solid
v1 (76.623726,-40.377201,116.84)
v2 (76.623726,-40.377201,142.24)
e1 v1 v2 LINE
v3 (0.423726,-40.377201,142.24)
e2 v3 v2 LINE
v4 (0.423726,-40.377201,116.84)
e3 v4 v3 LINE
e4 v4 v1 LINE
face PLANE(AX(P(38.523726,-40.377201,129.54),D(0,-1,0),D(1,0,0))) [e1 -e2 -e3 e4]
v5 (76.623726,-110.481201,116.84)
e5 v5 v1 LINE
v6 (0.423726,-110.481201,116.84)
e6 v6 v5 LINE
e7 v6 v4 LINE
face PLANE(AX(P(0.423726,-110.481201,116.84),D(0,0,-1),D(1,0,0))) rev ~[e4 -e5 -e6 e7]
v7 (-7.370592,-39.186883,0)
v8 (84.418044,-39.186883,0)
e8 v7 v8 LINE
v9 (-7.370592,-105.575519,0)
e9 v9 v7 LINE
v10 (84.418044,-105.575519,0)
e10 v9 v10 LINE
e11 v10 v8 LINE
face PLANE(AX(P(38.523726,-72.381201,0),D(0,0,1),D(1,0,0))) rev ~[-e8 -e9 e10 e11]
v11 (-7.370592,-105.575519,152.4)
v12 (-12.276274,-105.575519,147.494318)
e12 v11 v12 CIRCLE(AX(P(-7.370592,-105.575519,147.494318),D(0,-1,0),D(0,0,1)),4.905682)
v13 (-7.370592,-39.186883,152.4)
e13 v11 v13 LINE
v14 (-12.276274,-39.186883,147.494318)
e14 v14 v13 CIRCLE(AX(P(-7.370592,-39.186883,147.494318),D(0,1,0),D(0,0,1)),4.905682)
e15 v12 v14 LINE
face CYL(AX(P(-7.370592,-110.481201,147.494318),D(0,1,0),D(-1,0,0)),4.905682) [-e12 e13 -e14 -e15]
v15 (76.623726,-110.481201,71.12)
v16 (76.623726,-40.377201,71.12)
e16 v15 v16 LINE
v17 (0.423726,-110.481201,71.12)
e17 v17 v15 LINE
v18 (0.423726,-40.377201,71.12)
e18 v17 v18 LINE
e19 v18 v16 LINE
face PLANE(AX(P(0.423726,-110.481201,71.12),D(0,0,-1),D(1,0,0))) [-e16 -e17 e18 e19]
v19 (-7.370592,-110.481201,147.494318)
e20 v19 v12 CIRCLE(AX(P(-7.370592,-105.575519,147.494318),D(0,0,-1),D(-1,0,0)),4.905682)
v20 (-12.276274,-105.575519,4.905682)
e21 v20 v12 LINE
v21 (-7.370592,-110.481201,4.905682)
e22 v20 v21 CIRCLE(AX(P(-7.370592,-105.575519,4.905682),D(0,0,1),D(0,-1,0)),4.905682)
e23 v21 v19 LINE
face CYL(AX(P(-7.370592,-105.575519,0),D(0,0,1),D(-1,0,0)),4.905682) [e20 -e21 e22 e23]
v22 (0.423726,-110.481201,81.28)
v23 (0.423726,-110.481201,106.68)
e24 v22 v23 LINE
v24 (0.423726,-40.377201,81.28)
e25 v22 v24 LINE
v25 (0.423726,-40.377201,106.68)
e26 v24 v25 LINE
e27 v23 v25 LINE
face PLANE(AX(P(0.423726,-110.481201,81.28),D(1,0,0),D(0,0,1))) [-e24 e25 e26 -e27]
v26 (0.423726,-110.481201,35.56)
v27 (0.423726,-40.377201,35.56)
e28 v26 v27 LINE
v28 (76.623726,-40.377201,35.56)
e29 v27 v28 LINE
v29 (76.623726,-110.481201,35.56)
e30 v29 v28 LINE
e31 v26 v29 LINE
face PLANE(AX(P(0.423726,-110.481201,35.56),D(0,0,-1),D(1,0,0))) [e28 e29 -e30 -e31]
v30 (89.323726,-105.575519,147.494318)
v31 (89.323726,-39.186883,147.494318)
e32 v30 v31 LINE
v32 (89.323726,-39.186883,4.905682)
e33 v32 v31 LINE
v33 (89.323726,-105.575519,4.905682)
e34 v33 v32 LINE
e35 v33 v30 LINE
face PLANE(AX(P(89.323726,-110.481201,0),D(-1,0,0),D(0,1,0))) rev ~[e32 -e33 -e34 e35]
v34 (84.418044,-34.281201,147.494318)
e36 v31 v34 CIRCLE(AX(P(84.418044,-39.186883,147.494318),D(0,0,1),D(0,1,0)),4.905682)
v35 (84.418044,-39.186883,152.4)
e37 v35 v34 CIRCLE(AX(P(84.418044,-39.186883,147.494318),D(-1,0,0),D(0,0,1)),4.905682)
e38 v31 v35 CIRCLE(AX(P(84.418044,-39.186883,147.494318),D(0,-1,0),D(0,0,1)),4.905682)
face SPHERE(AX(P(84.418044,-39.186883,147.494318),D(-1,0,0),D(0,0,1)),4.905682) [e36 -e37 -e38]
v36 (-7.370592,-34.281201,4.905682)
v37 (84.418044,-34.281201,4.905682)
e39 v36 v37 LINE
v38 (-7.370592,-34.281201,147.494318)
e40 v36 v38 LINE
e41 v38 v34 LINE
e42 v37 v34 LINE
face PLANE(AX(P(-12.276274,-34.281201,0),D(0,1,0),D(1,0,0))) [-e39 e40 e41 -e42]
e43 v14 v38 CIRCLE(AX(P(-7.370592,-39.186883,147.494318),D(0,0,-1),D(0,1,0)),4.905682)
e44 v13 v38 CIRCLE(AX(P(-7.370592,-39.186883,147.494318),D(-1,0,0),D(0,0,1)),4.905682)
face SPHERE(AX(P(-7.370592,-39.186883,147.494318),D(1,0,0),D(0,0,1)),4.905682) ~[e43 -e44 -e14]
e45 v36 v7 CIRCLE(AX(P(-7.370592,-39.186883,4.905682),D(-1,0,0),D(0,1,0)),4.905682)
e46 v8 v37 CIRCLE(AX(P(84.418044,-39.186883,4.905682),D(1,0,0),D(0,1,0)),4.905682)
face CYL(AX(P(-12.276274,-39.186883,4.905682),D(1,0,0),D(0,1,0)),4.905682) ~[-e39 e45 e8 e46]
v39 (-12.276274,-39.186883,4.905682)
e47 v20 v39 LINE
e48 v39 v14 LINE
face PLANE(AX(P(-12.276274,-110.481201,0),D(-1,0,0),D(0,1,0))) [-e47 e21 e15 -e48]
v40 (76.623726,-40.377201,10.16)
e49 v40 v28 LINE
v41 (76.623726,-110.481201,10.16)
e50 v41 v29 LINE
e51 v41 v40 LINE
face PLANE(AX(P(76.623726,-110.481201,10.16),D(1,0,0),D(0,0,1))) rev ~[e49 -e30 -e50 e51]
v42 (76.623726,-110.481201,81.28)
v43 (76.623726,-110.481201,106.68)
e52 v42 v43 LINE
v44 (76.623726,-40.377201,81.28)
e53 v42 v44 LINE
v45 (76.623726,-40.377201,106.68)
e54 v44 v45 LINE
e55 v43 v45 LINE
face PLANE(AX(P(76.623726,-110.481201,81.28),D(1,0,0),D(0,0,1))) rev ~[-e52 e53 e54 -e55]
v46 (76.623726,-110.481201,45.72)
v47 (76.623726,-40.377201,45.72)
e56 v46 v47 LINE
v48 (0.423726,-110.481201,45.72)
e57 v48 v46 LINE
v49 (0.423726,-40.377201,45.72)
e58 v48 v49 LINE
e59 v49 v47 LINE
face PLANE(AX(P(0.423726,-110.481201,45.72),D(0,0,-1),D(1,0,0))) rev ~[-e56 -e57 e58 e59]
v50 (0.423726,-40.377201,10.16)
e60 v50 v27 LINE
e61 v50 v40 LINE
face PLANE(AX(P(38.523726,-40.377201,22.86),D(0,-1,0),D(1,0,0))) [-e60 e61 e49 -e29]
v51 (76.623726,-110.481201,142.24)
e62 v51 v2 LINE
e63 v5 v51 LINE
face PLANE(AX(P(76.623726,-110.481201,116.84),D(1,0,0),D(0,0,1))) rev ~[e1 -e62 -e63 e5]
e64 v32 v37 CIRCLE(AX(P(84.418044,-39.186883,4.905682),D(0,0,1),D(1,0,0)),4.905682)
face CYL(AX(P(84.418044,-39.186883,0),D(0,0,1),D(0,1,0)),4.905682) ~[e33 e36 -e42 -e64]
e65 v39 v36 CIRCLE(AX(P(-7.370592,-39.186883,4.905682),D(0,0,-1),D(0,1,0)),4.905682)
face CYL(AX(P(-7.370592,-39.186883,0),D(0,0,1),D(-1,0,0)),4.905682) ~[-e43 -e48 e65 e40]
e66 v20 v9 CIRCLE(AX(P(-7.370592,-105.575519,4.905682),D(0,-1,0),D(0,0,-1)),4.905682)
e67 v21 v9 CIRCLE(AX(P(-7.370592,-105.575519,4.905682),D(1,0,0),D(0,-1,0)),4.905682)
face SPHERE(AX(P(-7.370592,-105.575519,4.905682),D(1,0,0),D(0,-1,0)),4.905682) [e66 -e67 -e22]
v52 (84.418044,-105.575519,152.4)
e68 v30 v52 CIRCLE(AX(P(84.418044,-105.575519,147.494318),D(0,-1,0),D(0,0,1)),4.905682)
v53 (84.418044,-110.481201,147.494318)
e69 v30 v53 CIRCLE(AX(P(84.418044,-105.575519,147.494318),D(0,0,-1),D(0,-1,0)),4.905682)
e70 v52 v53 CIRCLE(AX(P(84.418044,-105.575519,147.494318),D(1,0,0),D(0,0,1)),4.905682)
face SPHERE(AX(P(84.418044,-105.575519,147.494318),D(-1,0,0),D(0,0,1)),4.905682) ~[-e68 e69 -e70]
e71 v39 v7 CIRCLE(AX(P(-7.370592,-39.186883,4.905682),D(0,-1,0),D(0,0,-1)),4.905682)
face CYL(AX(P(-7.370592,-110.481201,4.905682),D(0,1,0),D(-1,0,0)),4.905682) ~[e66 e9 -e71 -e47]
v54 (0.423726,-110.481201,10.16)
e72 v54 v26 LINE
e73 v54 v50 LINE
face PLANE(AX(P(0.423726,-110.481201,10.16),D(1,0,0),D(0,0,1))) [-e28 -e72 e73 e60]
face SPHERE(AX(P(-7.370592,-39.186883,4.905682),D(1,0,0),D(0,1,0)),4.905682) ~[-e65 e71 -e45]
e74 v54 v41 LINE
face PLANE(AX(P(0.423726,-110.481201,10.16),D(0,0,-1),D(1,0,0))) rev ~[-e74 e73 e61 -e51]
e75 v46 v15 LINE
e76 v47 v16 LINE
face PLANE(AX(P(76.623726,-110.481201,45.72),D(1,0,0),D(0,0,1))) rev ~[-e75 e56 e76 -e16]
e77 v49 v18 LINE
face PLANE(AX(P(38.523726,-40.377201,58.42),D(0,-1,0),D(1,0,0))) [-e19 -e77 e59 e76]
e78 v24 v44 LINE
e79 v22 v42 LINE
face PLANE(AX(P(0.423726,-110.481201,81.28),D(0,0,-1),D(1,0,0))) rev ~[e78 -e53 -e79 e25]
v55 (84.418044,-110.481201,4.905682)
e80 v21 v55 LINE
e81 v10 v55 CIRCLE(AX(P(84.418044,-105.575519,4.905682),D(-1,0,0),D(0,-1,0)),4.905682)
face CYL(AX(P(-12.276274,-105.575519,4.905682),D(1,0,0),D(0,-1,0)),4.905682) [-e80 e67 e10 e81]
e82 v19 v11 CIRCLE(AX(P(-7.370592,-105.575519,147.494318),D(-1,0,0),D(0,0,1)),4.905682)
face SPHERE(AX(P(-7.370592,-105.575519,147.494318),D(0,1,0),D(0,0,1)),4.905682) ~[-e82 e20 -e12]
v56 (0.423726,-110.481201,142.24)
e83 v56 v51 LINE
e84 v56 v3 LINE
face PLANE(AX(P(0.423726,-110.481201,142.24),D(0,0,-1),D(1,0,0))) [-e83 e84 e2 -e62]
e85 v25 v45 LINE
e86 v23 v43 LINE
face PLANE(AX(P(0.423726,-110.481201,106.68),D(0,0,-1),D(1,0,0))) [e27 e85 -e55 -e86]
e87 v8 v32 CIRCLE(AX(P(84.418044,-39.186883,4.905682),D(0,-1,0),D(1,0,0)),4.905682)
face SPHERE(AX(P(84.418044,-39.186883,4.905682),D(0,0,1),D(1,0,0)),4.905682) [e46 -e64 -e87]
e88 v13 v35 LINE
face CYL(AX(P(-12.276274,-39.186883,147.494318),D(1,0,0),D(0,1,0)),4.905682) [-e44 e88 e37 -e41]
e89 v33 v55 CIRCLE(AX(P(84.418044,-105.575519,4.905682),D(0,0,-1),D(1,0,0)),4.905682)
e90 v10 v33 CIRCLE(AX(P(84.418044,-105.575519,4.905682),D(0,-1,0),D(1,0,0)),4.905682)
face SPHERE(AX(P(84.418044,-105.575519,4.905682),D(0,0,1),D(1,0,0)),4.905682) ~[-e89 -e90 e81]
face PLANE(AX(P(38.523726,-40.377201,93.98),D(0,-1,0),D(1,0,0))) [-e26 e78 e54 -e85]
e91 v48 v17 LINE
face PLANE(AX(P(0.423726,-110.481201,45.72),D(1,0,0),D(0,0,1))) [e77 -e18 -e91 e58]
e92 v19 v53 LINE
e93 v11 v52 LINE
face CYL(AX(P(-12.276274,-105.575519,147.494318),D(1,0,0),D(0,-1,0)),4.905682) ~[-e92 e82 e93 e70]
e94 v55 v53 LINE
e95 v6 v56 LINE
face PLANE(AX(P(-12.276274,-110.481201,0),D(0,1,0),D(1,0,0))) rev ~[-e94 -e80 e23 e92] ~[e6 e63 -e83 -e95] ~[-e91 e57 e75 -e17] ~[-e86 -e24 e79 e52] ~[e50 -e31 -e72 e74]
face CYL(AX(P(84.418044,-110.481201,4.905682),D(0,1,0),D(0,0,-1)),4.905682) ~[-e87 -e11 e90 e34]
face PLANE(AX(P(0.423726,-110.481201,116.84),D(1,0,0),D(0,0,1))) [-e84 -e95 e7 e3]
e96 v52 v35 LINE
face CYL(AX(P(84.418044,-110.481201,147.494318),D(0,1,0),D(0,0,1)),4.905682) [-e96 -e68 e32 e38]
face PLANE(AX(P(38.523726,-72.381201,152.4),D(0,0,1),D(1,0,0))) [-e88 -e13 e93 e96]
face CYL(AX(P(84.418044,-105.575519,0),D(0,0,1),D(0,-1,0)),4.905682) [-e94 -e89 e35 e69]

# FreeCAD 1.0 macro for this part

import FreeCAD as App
import Part
import Sketcher
Q = App.Units.Quantity


def edges_at(feature, points):
    """Names of the edges that pass closest to the given points."""
    edges = feature.Shape.Edges
    near = lambda p: min(range(len(edges)), key=lambda i: edges[i].distToShape(Part.Vertex(*p))[0])
    return sorted({f"Edge{near(p) + 1}" for p in points})

doc = App.newDocument("Part")
body = doc.addObject("PartDesign::Body", "Body")

sketch1 = body.newObject("Sketcher::SketchObject", "Sketch")
sketch1.AttachmentSupport = (doc.getObject("XY_Plane"), [""])
sketch1.MapMode = "FlatFace"
sketch1.addGeometry(Part.LineSegment(App.Vector(-12.276274, -34.281201, 0), App.Vector(-12.276274, -110.481201, 0)), False)
sketch1.addGeometry(Part.LineSegment(App.Vector(-12.276274, -110.481201, 0), App.Vector(89.323726, -110.481201, 0)), False)
sketch1.addGeometry(Part.LineSegment(App.Vector(89.323726, -110.481201, 0), App.Vector(89.323726, -34.281201, 0)), False)
sketch1.addGeometry(Part.LineSegment(App.Vector(89.323726, -34.281201, 0), App.Vector(-12.276274, -34.281201, 0)), False)
sketch1.addConstraint(Sketcher.Constraint("Coincident", 0, 2, 1, 1))
sketch1.addConstraint(Sketcher.Constraint("Coincident", 1, 2, 2, 1))
sketch1.addConstraint(Sketcher.Constraint("Coincident", 2, 2, 3, 1))
sketch1.addConstraint(Sketcher.Constraint("Coincident", 3, 2, 0, 1))
sketch1.addConstraint(Sketcher.Constraint("Vertical", 0))
sketch1.addConstraint(Sketcher.Constraint("Horizontal", 1))
sketch1.addConstraint(Sketcher.Constraint("Vertical", 2))
sketch1.addConstraint(Sketcher.Constraint("Horizontal", 3))
sketch1.addConstraint(Sketcher.Constraint("DistanceX", 1, 1, 1, 2, Q("4 in")))
sketch1.addConstraint(Sketcher.Constraint("DistanceY", 0, 2, 0, 1, Q("3 in")))
sketch1.addConstraint(Sketcher.Constraint("DistanceY", 0, 2, -1, 1, 110.481201))
sketch1.addConstraint(Sketcher.Constraint("DistanceX", 0, 2, -1, 1, 12.276274))
pad1 = body.newObject("PartDesign::Pad", "Pad")
pad1.Profile = sketch1
pad1.Length = Q("6 in")

sketch2 = body.newObject("Sketcher::SketchObject", "Sketch001")
sketch2.AttachmentSupport = (doc.getObject("XZ_Plane"), [""])
sketch2.MapMode = "FlatFace"
sketch2.AttachmentOffset = App.Placement(App.Vector(0, 0, 110.481201), App.Rotation())
sketch2.addGeometry(Part.LineSegment(App.Vector(0.423726, 142.24, 0), App.Vector(0.423726, 116.84, 0)), False)
sketch2.addGeometry(Part.LineSegment(App.Vector(0.423726, 116.84, 0), App.Vector(76.623726, 116.84, 0)), False)
sketch2.addGeometry(Part.LineSegment(App.Vector(76.623726, 116.84, 0), App.Vector(76.623726, 142.24, 0)), False)
sketch2.addGeometry(Part.LineSegment(App.Vector(76.623726, 142.24, 0), App.Vector(0.423726, 142.24, 0)), False)
sketch2.addGeometry(Part.LineSegment(App.Vector(0.423726, 106.68, 0), App.Vector(0.423726, 81.28, 0)), False)
sketch2.addGeometry(Part.LineSegment(App.Vector(0.423726, 81.28, 0), App.Vector(76.623726, 81.28, 0)), False)
sketch2.addGeometry(Part.LineSegment(App.Vector(76.623726, 81.28, 0), App.Vector(76.623726, 106.68, 0)), False)
sketch2.addGeometry(Part.LineSegment(App.Vector(76.623726, 106.68, 0), App.Vector(0.423726, 106.68, 0)), False)
sketch2.addGeometry(Part.LineSegment(App.Vector(0.423726, 71.12, 0), App.Vector(0.423726, 45.72, 0)), False)
sketch2.addGeometry(Part.LineSegment(App.Vector(0.423726, 45.72, 0), App.Vector(76.623726, 45.72, 0)), False)
sketch2.addGeometry(Part.LineSegment(App.Vector(76.623726, 45.72, 0), App.Vector(76.623726, 71.12, 0)), False)
sketch2.addGeometry(Part.LineSegment(App.Vector(76.623726, 71.12, 0), App.Vector(0.423726, 71.12, 0)), False)
sketch2.addGeometry(Part.LineSegment(App.Vector(0.423726, 35.56, 0), App.Vector(0.423726, 10.16, 0)), False)
sketch2.addGeometry(Part.LineSegment(App.Vector(0.423726, 10.16, 0), App.Vector(76.623726, 10.16, 0)), False)
sketch2.addGeometry(Part.LineSegment(App.Vector(76.623726, 10.16, 0), App.Vector(76.623726, 35.56, 0)), False)
sketch2.addGeometry(Part.LineSegment(App.Vector(76.623726, 35.56, 0), App.Vector(0.423726, 35.56, 0)), False)
sketch2.addConstraint(Sketcher.Constraint("Coincident", 0, 2, 1, 1))
sketch2.addConstraint(Sketcher.Constraint("Coincident", 1, 2, 2, 1))
sketch2.addConstraint(Sketcher.Constraint("Coincident", 2, 2, 3, 1))
sketch2.addConstraint(Sketcher.Constraint("Coincident", 3, 2, 0, 1))
sketch2.addConstraint(Sketcher.Constraint("Coincident", 4, 2, 5, 1))
sketch2.addConstraint(Sketcher.Constraint("Coincident", 5, 2, 6, 1))
sketch2.addConstraint(Sketcher.Constraint("Coincident", 6, 2, 7, 1))
sketch2.addConstraint(Sketcher.Constraint("Coincident", 7, 2, 4, 1))
sketch2.addConstraint(Sketcher.Constraint("Coincident", 8, 2, 9, 1))
sketch2.addConstraint(Sketcher.Constraint("Coincident", 9, 2, 10, 1))
sketch2.addConstraint(Sketcher.Constraint("Coincident", 10, 2, 11, 1))
sketch2.addConstraint(Sketcher.Constraint("Coincident", 11, 2, 8, 1))
sketch2.addConstraint(Sketcher.Constraint("Coincident", 12, 2, 13, 1))
sketch2.addConstraint(Sketcher.Constraint("Coincident", 13, 2, 14, 1))
sketch2.addConstraint(Sketcher.Constraint("Coincident", 14, 2, 15, 1))
sketch2.addConstraint(Sketcher.Constraint("Coincident", 15, 2, 12, 1))
sketch2.addConstraint(Sketcher.Constraint("Vertical", 0))
sketch2.addConstraint(Sketcher.Constraint("Horizontal", 1))
sketch2.addConstraint(Sketcher.Constraint("Vertical", 2))
sketch2.addConstraint(Sketcher.Constraint("Horizontal", 3))
sketch2.addConstraint(Sketcher.Constraint("Vertical", 4))
sketch2.addConstraint(Sketcher.Constraint("Horizontal", 5))
sketch2.addConstraint(Sketcher.Constraint("Vertical", 6))
sketch2.addConstraint(Sketcher.Constraint("Horizontal", 7))
sketch2.addConstraint(Sketcher.Constraint("Vertical", 8))
sketch2.addConstraint(Sketcher.Constraint("Horizontal", 9))
sketch2.addConstraint(Sketcher.Constraint("Vertical", 10))
sketch2.addConstraint(Sketcher.Constraint("Horizontal", 11))
sketch2.addConstraint(Sketcher.Constraint("Vertical", 12))
sketch2.addConstraint(Sketcher.Constraint("Horizontal", 13))
sketch2.addConstraint(Sketcher.Constraint("Vertical", 14))
sketch2.addConstraint(Sketcher.Constraint("Horizontal", 15))
sketch2.addConstraint(Sketcher.Constraint("Vertical", 3, 2, 4, 2))
sketch2.addConstraint(Sketcher.Constraint("Vertical", 2, 2, 5, 2))
sketch2.addConstraint(Sketcher.Constraint("Vertical", 7, 2, 8, 2))
sketch2.addConstraint(Sketcher.Constraint("Vertical", 6, 2, 9, 2))
sketch2.addConstraint(Sketcher.Constraint("Vertical", 11, 2, 12, 2))
sketch2.addConstraint(Sketcher.Constraint("Vertical", 10, 2, 13, 2))
sketch2.addConstraint(Sketcher.Constraint("Equal", 2, 4))
sketch2.addConstraint(Sketcher.Constraint("Equal", 6, 8))
sketch2.addConstraint(Sketcher.Constraint("Equal", 10, 12))
sketch2.addConstraint(Sketcher.Constraint("DistanceX", 1, 1, 1, 2, Q("3 in")))
sketch2.addConstraint(Sketcher.Constraint("DistanceY", 0, 2, 0, 1, Q("1 in")))
sketch2.addConstraint(Sketcher.Constraint("DistanceY", -1, 1, 0, 2, Q("4.6 in")))
sketch2.addConstraint(Sketcher.Constraint("DistanceY", -1, 1, 4, 2, Q("3.2 in")))
sketch2.addConstraint(Sketcher.Constraint("DistanceY", -1, 1, 8, 2, Q("1.8 in")))
sketch2.addConstraint(Sketcher.Constraint("DistanceY", -1, 1, 12, 2, Q("0.4 in")))
sketch2.addConstraint(Sketcher.Constraint("DistanceX", -1, 1, 0, 2, 0.423726))
pocket1 = body.newObject("PartDesign::Pocket", "Pocket")
pocket1.Profile = sketch2
pocket1.Length = Q("2.76 in")
doc.recompute()

fillet = body.newObject("PartDesign::Fillet", "Fillet")
fillet.Base = (pocket1, edges_at(pocket1, [
    (38.524, -34.281, 152.4),
    (-12.276, -72.381, 152.4),
    (38.524, -110.481, 152.4),
    (89.324, -72.381, 152.4),
    (89.324, -110.481, 76.2),
    (89.324, -34.281, 76.2),
    (89.324, -72.381, 0),
    (38.524, -110.481, 0),
    (38.524, -34.281, 0),
    (-12.276, -34.281, 76.2),
    (-12.276, -110.481, 76.2),
    (-12.276, -72.381, 0),
]))
fillet.Radius = 4.905682

doc.recompute()
